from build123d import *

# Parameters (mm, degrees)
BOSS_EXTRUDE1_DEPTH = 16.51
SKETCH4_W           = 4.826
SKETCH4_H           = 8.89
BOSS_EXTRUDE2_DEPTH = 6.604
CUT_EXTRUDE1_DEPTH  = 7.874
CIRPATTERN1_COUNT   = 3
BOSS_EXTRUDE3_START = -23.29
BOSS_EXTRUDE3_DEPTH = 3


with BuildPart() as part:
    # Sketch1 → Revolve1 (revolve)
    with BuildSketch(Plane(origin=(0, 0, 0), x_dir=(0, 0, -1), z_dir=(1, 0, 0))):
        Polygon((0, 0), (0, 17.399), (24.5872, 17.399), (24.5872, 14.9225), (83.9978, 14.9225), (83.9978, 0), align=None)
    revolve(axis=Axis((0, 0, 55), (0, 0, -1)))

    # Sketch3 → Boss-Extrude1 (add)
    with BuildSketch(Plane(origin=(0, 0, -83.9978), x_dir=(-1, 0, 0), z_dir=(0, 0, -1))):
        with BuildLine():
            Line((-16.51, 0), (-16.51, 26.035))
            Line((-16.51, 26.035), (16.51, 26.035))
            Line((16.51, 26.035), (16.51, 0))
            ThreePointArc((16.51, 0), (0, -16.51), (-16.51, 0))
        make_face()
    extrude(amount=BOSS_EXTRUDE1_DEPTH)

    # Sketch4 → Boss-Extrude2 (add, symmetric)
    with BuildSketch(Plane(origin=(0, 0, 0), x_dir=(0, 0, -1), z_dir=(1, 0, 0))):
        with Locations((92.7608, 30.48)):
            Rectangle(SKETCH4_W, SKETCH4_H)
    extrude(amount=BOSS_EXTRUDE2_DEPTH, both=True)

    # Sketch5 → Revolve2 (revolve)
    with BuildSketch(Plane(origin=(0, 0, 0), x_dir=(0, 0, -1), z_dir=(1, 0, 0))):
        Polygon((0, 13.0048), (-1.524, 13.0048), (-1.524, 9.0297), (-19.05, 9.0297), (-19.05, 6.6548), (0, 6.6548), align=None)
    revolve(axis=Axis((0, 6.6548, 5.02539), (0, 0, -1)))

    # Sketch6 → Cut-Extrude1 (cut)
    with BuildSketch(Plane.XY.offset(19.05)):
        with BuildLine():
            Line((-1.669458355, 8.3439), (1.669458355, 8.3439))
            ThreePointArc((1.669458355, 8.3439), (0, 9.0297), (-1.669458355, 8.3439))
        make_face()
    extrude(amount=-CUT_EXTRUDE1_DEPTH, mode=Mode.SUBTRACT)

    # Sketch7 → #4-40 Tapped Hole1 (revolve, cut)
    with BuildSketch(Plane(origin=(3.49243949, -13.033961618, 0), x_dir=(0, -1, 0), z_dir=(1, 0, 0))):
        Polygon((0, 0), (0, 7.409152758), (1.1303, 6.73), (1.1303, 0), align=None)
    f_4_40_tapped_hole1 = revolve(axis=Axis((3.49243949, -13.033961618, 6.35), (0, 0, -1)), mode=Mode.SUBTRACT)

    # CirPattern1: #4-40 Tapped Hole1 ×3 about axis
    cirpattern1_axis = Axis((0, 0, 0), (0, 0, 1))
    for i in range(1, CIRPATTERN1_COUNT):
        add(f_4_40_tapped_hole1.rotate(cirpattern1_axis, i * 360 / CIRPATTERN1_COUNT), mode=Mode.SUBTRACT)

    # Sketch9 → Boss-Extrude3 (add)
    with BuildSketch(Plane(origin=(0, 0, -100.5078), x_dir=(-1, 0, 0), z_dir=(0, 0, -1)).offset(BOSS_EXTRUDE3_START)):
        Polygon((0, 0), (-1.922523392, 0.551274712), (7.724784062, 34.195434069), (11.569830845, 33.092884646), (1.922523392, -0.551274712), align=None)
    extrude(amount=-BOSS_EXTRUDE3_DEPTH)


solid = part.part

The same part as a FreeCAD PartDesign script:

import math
import FreeCAD as App
import Part
import Sketcher
Q = App.Units.Quantity

doc = App.newDocument("Part")
body = doc.addObject("PartDesign::Body", "Body")

sketch1 = doc.addObject("Sketcher::SketchObject", "Sketch")
body.addObject(sketch1)
sketch1.AttachmentSupport = (doc.YZ_Plane, [""])
sketch1.MapMode = "FlatFace"
sketch1.addGeometry([
    Part.LineSegment(App.Vector(17.399, 0, 0), App.Vector(0, 0, 0)),
    Part.LineSegment(App.Vector(0, 0, 0), App.Vector(0, -83.9978, 0)),
    Part.LineSegment(App.Vector(0, -83.9978, 0), App.Vector(14.9225, -83.9978, 0)),
    Part.LineSegment(App.Vector(14.9225, -83.9978, 0), App.Vector(14.9225, -24.5872, 0)),
    Part.LineSegment(App.Vector(14.9225, -24.5872, 0), App.Vector(17.399, -24.5872, 0)),
    Part.LineSegment(App.Vector(17.399, -24.5872, 0), App.Vector(17.399, 0, 0)),
], False)
sketch1.addConstraint([
    Sketcher.Constraint("Coincident", 0, 2, 1, 1),
    Sketcher.Constraint("Coincident", 1, 2, 2, 1),
    Sketcher.Constraint("Coincident", 2, 2, 3, 1),
    Sketcher.Constraint("Coincident", 3, 2, 4, 1),
    Sketcher.Constraint("Coincident", 4, 2, 5, 1),
    Sketcher.Constraint("Coincident", 5, 2, 0, 1),
    Sketcher.Constraint("Horizontal", 0),
    Sketcher.Constraint("Vertical", 1),
    Sketcher.Constraint("Horizontal", 2),
    Sketcher.Constraint("Vertical", 3),
    Sketcher.Constraint("Horizontal", 4),
    Sketcher.Constraint("Vertical", 5),
    Sketcher.Constraint("Coincident", 0, 2, -1, 1),
    Sketcher.Constraint("DistanceX", 0, 2, 0, 1, Q("0.685 in")),
    Sketcher.Constraint("DistanceY", 1, 2, 1, 1, Q("3.307 in")),
    Sketcher.Constraint("DistanceY", 3, 1, 3, 2, Q("2.339 in")),
    Sketcher.Constraint("DistanceX", 2, 1, 2, 2, Q("0.5875 in")),
])
revolution = doc.addObject("PartDesign::Revolution", "Revolution")
body.addObject(revolution)
revolution.Profile = sketch1
revolution.ReferenceAxis = (sketch1, ["V_Axis"])
revolution.Angle = 360

sketch2 = doc.addObject("Sketcher::SketchObject", "Sketch001")
body.addObject(sketch2)
sketch2.AttachmentSupport = (doc.XY_Plane, [""])
sketch2.MapMode = "FlatFace"
sketch2.AttachmentOffset = App.Placement(App.Vector(0, 0, -3.307 * 25.4), App.Rotation())
sketch2.addGeometry([
    Part.LineSegment(App.Vector(16.51, 26.035, 0), App.Vector(16.51, 0, 0)),
    Part.ArcOfCircle(Part.Circle(App.Vector(0, 0, 0), App.Vector(0, 0, 1), 16.51), math.radians(180), math.radians(360)),
    Part.LineSegment(App.Vector(-16.51, 0, 0), App.Vector(-16.51, 26.035, 0)),
    Part.LineSegment(App.Vector(-16.51, 26.035, 0), App.Vector(16.51, 26.035, 0)),
], False)
sketch2.addConstraint([
    Sketcher.Constraint("Tangent", 0, 2, 1, 2),
    Sketcher.Constraint("Tangent", 1, 1, 2, 1),
    Sketcher.Constraint("Coincident", 2, 2, 3, 1),
    Sketcher.Constraint("Coincident", 3, 2, 0, 1),
    Sketcher.Constraint("Vertical", 0),
    Sketcher.Constraint("Vertical", 2),
    Sketcher.Constraint("Horizontal", 3),
    Sketcher.Constraint("Coincident", 1, 3, -1, 1),
    Sketcher.Constraint("Radius", 1, Q("0.65 in")),
    Sketcher.Constraint("DistanceY", 0, 2, 0, 1, Q("1.025 in")),
])
pad1 = doc.addObject("PartDesign::Pad", "Pad")
body.addObject(pad1)
pad1.Profile = sketch2
pad1.Length = Q("0.65 in")
pad1.Reversed = True

sketch3 = doc.addObject("Sketcher::SketchObject", "Sketch002")
body.addObject(sketch3)
sketch3.AttachmentSupport = (doc.YZ_Plane, [""])
sketch3.MapMode = "FlatFace"
sketch3.addGeometry([
    Part.LineSegment(App.Vector(34.925, -90.3478, 0), App.Vector(26.035, -90.3478, 0)),
    Part.LineSegment(App.Vector(26.035, -90.3478, 0), App.Vector(26.035, -95.1738, 0)),
    Part.LineSegment(App.Vector(26.035, -95.1738, 0), App.Vector(34.925, -95.1738, 0)),
    Part.LineSegment(App.Vector(34.925, -95.1738, 0), App.Vector(34.925, -90.3478, 0)),
], False)
sketch3.addConstraint([
    Sketcher.Constraint("Coincident", 0, 2, 1, 1),
    Sketcher.Constraint("Coincident", 1, 2, 2, 1),
    Sketcher.Constraint("Coincident", 2, 2, 3, 1),
    Sketcher.Constraint("Coincident", 3, 2, 0, 1),
    Sketcher.Constraint("Horizontal", 0),
    Sketcher.Constraint("Vertical", 1),
    Sketcher.Constraint("Horizontal", 2),
    Sketcher.Constraint("Vertical", 3),
    Sketcher.Constraint("DistanceX", 0, 2, 0, 1, Q("0.35 in")),
    Sketcher.Constraint("DistanceY", 1, 2, 1, 1, Q("0.19 in")),
    Sketcher.Constraint("DistanceX", -1, 1, 0, 2, Q("1.025 in")),
    Sketcher.Constraint("DistanceY", 0, 2, -1, 1, Q("3.557 in")),
])
pad2 = doc.addObject("PartDesign::Pad", "Pad001")
body.addObject(pad2)
pad2.Profile = sketch3
pad2.Length = Q("0.52 in")
pad2.Midplane = True

sketch4 = doc.addObject("Sketcher::SketchObject", "Sketch003")
body.addObject(sketch4)
sketch4.AttachmentSupport = (doc.YZ_Plane, [""])
sketch4.MapMode = "FlatFace"
sketch4.addGeometry([
    Part.LineSegment(App.Vector(13.0048, 0, 0), App.Vector(13.0048, 1.524, 0)),
    Part.LineSegment(App.Vector(13.0048, 1.524, 0), App.Vector(9.0297, 1.524, 0)),
    Part.LineSegment(App.Vector(9.0297, 1.524, 0), App.Vector(9.0297, 19.05, 0)),
    Part.LineSegment(App.Vector(9.0297, 19.05, 0), App.Vector(6.6548, 19.05, 0)),
    Part.LineSegment(App.Vector(6.6548, 19.05, 0), App.Vector(6.6548, 0, 0)),
    Part.LineSegment(App.Vector(6.6548, 0, 0), App.Vector(13.0048, 0, 0)),
], False)
sketch4.addGeometry(Part.LineSegment(App.Vector(6.6548, 19.05, 0), App.Vector(6.6548, 0, 0)), True)
sketch4.addConstraint([
    Sketcher.Constraint("Coincident", 0, 2, 1, 1),
    Sketcher.Constraint("Coincident", 1, 2, 2, 1),
    Sketcher.Constraint("Coincident", 2, 2, 3, 1),
    Sketcher.Constraint("Coincident", 3, 2, 4, 1),
    Sketcher.Constraint("Coincident", 4, 2, 5, 1),
    Sketcher.Constraint("Coincident", 5, 2, 0, 1),
    Sketcher.Constraint("Vertical", 0),
    Sketcher.Constraint("Horizontal", 1),
    Sketcher.Constraint("Vertical", 2),
    Sketcher.Constraint("Horizontal", 3),
    Sketcher.Constraint("Vertical", 4),
    Sketcher.Constraint("Horizontal", 5),
    Sketcher.Constraint("Vertical", 6),
    Sketcher.Constraint("Coincident", 6, 1, 3, 2),
    Sketcher.Constraint("PointOnObject", 4, 2, -1),
    Sketcher.Constraint("PointOnObject", 6, 2, -1),
    Sketcher.Constraint("DistanceX", 5, 1, 5, 2, Q("0.25 in")),
    Sketcher.Constraint("DistanceY", 0, 1, 0, 2, Q("0.06 in")),
    Sketcher.Constraint("DistanceY", 2, 1, 2, 2, Q("0.69 in")),
    Sketcher.Constraint("DistanceX", 1, 2, 1, 1, Q("0.1565 in")),
    Sketcher.Constraint("DistanceX", -1, 1, 0, 2, Q("0.512 in")),
])
revolution2 = doc.addObject("PartDesign::Revolution", "Revolution001")
body.addObject(revolution2)
revolution2.Profile = sketch4
revolution2.ReferenceAxis = (sketch4, ["Axis0"])
revolution2.Angle = 360

sketch5 = doc.addObject("Sketcher::SketchObject", "Sketch004")
body.addObject(sketch5)
sketch5.AttachmentSupport = (doc.XY_Plane, [""])
sketch5.MapMode = "FlatFace"
sketch5.AttachmentOffset = App.Placement(App.Vector(0, 0, 0.75 * 25.4), App.Rotation())
sketch5.addGeometry([
    Part.LineSegment(App.Vector(-1.669458, 8.3439, 0), App.Vector(1.669458, 8.3439, 0)),
    Part.ArcOfCircle(Part.Circle(App.Vector(0, 6.6548, 0), App.Vector(0, 0, 1), 2.3749), math.radians(45.335075), math.radians(134.664925)),
], False)
sketch5.addConstraint([
    Sketcher.Constraint("Coincident", 0, 1, 1, 2),
    Sketcher.Constraint("Coincident", 1, 1, 0, 2),
    Sketcher.Constraint("Horizontal", 0),
    Sketcher.Constraint("PointOnObject", 1, 3, -2),
    Sketcher.Constraint("Radius", 1, Q("0.0935 in")),
    Sketcher.Constraint("DistanceY", -1, 1, 1, 3, Q("0.262 in")),
    Sketcher.Constraint("DistanceY", -1, 1, 0, 1, Q("0.3285 in")),
])
pocket1 = doc.addObject("PartDesign::Pocket", "Pocket")
body.addObject(pocket1)
pocket1.Profile = sketch5
pocket1.Length = Q("0.31 in")

sketch6 = doc.addObject("Sketcher::SketchObject", "Sketch005")
body.addObject(sketch6)
sketch6.AttachmentSupport = (doc.YZ_Plane, [""])
sketch6.MapMode = "FlatFace"
sketch6.AttachmentOffset = App.Placement(App.Vector(0, 0, 3.492439), App.Rotation())
sketch6.addGeometry([
    Part.LineSegment(App.Vector(-13.033962, -7.409153, 0), App.Vector(-13.033962, 0, 0)),
    Part.LineSegment(App.Vector(-13.033962, 0, 0), App.Vector(-14.164262, 0, 0)),
    Part.LineSegment(App.Vector(-14.164262, 0, 0), App.Vector(-14.164262, -6.73, 0)),
    Part.LineSegment(App.Vector(-14.164262, -6.73, 0), App.Vector(-13.033962, -7.409153, 0)),
], False)
sketch6.addGeometry(Part.LineSegment(App.Vector(-13.033962, 0, 0), App.Vector(-13.033962, -7.409153, 0)), True)
sketch6.addConstraint([
    Sketcher.Constraint("Coincident", 0, 2, 1, 1),
    Sketcher.Constraint("Coincident", 1, 2, 2, 1),
    Sketcher.Constraint("Coincident", 2, 2, 3, 1),
    Sketcher.Constraint("Coincident", 3, 2, 0, 1),
    Sketcher.Constraint("Vertical", 0),
    Sketcher.Constraint("Horizontal", 1),
    Sketcher.Constraint("Vertical", 2),
    Sketcher.Constraint("Vertical", 4),
    Sketcher.Constraint("Coincident", 4, 1, 0, 2),
    Sketcher.Constraint("PointOnObject", 0, 2, -1),
    Sketcher.Constraint("Equal", 0, 4),
    Sketcher.Constraint("Angle", 3, Q("-31 deg")),
    Sketcher.Constraint("DistanceX", 1, 2, 1, 1, Q("0.0445 in")),
    Sketcher.Constraint("DistanceY", 2, 2, 2, 1, Q("6.73 mm")),
    Sketcher.Constraint("DistanceX", 0, 2, -1, 1, Q("13.033962 mm")),
])
groove = doc.addObject("PartDesign::Groove", "Groove")
body.addObject(groove)
groove.Profile = sketch6
groove.ReferenceAxis = (sketch6, ["Axis0"])
groove.Angle = 360
doc.recompute()

polarpattern = doc.addObject("PartDesign::PolarPattern", "PolarPattern")
body.addObject(polarpattern)
polarpattern.Originals = [groove]
polarpattern.Axis = (doc.Z_Axis, [""])
polarpattern.Angle = 360
polarpattern.Occurrences = 3
body.Tip = polarpattern

sketch7 = doc.addObject("Sketcher::SketchObject", "Sketch006")
body.addObject(sketch7)
sketch7.AttachmentSupport = (doc.XY_Plane, [""])
sketch7.MapMode = "FlatFace"
sketch7.AttachmentOffset = App.Placement(App.Vector(0, 0, -77.2178), App.Rotation())
sketch7.addGeometry([
    Part.LineSegment(App.Vector(1.922523, 0.551275, 0), App.Vector(-1.922523, -0.551275, 0)),
    Part.LineSegment(App.Vector(-1.922523, -0.551275, 0), App.Vector(-11.569831, 33.092885, 0)),
    Part.LineSegment(App.Vector(-11.569831, 33.092885, 0), App.Vector(-7.724784, 34.195434, 0)),
    Part.LineSegment(App.Vector(-7.724784, 34.195434, 0), App.Vector(1.922523, 0.551275, 0)),
], False)
sketch7.addConstraint([
    Sketcher.Constraint("Coincident", 0, 2, 1, 1),
    Sketcher.Constraint("Coincident", 1, 2, 2, 1),
    Sketcher.Constraint("Coincident", 2, 2, 3, 1),
    Sketcher.Constraint("Coincident", 3, 2, 0, 1),
    Sketcher.Constraint("Symmetric", 0, 2, 3, 2, -1, 1),
    Sketcher.Constraint("Perpendicular", 0, 1),
    Sketcher.Constraint("Perpendicular", 1, 2),
    Sketcher.Constraint("Perpendicular", 2, 3),
    Sketcher.Constraint("Angle", 0, Q("-164 deg")),
    Sketcher.Constraint("Distance", 0, Q("4 mm")),
    Sketcher.Constraint("Distance", 1, Q("35 mm")),
])
pad3 = doc.addObject("PartDesign::Pad", "Pad002")
body.addObject(pad3)
pad3.Profile = sketch7
pad3.Length = 3

doc.recompute()
